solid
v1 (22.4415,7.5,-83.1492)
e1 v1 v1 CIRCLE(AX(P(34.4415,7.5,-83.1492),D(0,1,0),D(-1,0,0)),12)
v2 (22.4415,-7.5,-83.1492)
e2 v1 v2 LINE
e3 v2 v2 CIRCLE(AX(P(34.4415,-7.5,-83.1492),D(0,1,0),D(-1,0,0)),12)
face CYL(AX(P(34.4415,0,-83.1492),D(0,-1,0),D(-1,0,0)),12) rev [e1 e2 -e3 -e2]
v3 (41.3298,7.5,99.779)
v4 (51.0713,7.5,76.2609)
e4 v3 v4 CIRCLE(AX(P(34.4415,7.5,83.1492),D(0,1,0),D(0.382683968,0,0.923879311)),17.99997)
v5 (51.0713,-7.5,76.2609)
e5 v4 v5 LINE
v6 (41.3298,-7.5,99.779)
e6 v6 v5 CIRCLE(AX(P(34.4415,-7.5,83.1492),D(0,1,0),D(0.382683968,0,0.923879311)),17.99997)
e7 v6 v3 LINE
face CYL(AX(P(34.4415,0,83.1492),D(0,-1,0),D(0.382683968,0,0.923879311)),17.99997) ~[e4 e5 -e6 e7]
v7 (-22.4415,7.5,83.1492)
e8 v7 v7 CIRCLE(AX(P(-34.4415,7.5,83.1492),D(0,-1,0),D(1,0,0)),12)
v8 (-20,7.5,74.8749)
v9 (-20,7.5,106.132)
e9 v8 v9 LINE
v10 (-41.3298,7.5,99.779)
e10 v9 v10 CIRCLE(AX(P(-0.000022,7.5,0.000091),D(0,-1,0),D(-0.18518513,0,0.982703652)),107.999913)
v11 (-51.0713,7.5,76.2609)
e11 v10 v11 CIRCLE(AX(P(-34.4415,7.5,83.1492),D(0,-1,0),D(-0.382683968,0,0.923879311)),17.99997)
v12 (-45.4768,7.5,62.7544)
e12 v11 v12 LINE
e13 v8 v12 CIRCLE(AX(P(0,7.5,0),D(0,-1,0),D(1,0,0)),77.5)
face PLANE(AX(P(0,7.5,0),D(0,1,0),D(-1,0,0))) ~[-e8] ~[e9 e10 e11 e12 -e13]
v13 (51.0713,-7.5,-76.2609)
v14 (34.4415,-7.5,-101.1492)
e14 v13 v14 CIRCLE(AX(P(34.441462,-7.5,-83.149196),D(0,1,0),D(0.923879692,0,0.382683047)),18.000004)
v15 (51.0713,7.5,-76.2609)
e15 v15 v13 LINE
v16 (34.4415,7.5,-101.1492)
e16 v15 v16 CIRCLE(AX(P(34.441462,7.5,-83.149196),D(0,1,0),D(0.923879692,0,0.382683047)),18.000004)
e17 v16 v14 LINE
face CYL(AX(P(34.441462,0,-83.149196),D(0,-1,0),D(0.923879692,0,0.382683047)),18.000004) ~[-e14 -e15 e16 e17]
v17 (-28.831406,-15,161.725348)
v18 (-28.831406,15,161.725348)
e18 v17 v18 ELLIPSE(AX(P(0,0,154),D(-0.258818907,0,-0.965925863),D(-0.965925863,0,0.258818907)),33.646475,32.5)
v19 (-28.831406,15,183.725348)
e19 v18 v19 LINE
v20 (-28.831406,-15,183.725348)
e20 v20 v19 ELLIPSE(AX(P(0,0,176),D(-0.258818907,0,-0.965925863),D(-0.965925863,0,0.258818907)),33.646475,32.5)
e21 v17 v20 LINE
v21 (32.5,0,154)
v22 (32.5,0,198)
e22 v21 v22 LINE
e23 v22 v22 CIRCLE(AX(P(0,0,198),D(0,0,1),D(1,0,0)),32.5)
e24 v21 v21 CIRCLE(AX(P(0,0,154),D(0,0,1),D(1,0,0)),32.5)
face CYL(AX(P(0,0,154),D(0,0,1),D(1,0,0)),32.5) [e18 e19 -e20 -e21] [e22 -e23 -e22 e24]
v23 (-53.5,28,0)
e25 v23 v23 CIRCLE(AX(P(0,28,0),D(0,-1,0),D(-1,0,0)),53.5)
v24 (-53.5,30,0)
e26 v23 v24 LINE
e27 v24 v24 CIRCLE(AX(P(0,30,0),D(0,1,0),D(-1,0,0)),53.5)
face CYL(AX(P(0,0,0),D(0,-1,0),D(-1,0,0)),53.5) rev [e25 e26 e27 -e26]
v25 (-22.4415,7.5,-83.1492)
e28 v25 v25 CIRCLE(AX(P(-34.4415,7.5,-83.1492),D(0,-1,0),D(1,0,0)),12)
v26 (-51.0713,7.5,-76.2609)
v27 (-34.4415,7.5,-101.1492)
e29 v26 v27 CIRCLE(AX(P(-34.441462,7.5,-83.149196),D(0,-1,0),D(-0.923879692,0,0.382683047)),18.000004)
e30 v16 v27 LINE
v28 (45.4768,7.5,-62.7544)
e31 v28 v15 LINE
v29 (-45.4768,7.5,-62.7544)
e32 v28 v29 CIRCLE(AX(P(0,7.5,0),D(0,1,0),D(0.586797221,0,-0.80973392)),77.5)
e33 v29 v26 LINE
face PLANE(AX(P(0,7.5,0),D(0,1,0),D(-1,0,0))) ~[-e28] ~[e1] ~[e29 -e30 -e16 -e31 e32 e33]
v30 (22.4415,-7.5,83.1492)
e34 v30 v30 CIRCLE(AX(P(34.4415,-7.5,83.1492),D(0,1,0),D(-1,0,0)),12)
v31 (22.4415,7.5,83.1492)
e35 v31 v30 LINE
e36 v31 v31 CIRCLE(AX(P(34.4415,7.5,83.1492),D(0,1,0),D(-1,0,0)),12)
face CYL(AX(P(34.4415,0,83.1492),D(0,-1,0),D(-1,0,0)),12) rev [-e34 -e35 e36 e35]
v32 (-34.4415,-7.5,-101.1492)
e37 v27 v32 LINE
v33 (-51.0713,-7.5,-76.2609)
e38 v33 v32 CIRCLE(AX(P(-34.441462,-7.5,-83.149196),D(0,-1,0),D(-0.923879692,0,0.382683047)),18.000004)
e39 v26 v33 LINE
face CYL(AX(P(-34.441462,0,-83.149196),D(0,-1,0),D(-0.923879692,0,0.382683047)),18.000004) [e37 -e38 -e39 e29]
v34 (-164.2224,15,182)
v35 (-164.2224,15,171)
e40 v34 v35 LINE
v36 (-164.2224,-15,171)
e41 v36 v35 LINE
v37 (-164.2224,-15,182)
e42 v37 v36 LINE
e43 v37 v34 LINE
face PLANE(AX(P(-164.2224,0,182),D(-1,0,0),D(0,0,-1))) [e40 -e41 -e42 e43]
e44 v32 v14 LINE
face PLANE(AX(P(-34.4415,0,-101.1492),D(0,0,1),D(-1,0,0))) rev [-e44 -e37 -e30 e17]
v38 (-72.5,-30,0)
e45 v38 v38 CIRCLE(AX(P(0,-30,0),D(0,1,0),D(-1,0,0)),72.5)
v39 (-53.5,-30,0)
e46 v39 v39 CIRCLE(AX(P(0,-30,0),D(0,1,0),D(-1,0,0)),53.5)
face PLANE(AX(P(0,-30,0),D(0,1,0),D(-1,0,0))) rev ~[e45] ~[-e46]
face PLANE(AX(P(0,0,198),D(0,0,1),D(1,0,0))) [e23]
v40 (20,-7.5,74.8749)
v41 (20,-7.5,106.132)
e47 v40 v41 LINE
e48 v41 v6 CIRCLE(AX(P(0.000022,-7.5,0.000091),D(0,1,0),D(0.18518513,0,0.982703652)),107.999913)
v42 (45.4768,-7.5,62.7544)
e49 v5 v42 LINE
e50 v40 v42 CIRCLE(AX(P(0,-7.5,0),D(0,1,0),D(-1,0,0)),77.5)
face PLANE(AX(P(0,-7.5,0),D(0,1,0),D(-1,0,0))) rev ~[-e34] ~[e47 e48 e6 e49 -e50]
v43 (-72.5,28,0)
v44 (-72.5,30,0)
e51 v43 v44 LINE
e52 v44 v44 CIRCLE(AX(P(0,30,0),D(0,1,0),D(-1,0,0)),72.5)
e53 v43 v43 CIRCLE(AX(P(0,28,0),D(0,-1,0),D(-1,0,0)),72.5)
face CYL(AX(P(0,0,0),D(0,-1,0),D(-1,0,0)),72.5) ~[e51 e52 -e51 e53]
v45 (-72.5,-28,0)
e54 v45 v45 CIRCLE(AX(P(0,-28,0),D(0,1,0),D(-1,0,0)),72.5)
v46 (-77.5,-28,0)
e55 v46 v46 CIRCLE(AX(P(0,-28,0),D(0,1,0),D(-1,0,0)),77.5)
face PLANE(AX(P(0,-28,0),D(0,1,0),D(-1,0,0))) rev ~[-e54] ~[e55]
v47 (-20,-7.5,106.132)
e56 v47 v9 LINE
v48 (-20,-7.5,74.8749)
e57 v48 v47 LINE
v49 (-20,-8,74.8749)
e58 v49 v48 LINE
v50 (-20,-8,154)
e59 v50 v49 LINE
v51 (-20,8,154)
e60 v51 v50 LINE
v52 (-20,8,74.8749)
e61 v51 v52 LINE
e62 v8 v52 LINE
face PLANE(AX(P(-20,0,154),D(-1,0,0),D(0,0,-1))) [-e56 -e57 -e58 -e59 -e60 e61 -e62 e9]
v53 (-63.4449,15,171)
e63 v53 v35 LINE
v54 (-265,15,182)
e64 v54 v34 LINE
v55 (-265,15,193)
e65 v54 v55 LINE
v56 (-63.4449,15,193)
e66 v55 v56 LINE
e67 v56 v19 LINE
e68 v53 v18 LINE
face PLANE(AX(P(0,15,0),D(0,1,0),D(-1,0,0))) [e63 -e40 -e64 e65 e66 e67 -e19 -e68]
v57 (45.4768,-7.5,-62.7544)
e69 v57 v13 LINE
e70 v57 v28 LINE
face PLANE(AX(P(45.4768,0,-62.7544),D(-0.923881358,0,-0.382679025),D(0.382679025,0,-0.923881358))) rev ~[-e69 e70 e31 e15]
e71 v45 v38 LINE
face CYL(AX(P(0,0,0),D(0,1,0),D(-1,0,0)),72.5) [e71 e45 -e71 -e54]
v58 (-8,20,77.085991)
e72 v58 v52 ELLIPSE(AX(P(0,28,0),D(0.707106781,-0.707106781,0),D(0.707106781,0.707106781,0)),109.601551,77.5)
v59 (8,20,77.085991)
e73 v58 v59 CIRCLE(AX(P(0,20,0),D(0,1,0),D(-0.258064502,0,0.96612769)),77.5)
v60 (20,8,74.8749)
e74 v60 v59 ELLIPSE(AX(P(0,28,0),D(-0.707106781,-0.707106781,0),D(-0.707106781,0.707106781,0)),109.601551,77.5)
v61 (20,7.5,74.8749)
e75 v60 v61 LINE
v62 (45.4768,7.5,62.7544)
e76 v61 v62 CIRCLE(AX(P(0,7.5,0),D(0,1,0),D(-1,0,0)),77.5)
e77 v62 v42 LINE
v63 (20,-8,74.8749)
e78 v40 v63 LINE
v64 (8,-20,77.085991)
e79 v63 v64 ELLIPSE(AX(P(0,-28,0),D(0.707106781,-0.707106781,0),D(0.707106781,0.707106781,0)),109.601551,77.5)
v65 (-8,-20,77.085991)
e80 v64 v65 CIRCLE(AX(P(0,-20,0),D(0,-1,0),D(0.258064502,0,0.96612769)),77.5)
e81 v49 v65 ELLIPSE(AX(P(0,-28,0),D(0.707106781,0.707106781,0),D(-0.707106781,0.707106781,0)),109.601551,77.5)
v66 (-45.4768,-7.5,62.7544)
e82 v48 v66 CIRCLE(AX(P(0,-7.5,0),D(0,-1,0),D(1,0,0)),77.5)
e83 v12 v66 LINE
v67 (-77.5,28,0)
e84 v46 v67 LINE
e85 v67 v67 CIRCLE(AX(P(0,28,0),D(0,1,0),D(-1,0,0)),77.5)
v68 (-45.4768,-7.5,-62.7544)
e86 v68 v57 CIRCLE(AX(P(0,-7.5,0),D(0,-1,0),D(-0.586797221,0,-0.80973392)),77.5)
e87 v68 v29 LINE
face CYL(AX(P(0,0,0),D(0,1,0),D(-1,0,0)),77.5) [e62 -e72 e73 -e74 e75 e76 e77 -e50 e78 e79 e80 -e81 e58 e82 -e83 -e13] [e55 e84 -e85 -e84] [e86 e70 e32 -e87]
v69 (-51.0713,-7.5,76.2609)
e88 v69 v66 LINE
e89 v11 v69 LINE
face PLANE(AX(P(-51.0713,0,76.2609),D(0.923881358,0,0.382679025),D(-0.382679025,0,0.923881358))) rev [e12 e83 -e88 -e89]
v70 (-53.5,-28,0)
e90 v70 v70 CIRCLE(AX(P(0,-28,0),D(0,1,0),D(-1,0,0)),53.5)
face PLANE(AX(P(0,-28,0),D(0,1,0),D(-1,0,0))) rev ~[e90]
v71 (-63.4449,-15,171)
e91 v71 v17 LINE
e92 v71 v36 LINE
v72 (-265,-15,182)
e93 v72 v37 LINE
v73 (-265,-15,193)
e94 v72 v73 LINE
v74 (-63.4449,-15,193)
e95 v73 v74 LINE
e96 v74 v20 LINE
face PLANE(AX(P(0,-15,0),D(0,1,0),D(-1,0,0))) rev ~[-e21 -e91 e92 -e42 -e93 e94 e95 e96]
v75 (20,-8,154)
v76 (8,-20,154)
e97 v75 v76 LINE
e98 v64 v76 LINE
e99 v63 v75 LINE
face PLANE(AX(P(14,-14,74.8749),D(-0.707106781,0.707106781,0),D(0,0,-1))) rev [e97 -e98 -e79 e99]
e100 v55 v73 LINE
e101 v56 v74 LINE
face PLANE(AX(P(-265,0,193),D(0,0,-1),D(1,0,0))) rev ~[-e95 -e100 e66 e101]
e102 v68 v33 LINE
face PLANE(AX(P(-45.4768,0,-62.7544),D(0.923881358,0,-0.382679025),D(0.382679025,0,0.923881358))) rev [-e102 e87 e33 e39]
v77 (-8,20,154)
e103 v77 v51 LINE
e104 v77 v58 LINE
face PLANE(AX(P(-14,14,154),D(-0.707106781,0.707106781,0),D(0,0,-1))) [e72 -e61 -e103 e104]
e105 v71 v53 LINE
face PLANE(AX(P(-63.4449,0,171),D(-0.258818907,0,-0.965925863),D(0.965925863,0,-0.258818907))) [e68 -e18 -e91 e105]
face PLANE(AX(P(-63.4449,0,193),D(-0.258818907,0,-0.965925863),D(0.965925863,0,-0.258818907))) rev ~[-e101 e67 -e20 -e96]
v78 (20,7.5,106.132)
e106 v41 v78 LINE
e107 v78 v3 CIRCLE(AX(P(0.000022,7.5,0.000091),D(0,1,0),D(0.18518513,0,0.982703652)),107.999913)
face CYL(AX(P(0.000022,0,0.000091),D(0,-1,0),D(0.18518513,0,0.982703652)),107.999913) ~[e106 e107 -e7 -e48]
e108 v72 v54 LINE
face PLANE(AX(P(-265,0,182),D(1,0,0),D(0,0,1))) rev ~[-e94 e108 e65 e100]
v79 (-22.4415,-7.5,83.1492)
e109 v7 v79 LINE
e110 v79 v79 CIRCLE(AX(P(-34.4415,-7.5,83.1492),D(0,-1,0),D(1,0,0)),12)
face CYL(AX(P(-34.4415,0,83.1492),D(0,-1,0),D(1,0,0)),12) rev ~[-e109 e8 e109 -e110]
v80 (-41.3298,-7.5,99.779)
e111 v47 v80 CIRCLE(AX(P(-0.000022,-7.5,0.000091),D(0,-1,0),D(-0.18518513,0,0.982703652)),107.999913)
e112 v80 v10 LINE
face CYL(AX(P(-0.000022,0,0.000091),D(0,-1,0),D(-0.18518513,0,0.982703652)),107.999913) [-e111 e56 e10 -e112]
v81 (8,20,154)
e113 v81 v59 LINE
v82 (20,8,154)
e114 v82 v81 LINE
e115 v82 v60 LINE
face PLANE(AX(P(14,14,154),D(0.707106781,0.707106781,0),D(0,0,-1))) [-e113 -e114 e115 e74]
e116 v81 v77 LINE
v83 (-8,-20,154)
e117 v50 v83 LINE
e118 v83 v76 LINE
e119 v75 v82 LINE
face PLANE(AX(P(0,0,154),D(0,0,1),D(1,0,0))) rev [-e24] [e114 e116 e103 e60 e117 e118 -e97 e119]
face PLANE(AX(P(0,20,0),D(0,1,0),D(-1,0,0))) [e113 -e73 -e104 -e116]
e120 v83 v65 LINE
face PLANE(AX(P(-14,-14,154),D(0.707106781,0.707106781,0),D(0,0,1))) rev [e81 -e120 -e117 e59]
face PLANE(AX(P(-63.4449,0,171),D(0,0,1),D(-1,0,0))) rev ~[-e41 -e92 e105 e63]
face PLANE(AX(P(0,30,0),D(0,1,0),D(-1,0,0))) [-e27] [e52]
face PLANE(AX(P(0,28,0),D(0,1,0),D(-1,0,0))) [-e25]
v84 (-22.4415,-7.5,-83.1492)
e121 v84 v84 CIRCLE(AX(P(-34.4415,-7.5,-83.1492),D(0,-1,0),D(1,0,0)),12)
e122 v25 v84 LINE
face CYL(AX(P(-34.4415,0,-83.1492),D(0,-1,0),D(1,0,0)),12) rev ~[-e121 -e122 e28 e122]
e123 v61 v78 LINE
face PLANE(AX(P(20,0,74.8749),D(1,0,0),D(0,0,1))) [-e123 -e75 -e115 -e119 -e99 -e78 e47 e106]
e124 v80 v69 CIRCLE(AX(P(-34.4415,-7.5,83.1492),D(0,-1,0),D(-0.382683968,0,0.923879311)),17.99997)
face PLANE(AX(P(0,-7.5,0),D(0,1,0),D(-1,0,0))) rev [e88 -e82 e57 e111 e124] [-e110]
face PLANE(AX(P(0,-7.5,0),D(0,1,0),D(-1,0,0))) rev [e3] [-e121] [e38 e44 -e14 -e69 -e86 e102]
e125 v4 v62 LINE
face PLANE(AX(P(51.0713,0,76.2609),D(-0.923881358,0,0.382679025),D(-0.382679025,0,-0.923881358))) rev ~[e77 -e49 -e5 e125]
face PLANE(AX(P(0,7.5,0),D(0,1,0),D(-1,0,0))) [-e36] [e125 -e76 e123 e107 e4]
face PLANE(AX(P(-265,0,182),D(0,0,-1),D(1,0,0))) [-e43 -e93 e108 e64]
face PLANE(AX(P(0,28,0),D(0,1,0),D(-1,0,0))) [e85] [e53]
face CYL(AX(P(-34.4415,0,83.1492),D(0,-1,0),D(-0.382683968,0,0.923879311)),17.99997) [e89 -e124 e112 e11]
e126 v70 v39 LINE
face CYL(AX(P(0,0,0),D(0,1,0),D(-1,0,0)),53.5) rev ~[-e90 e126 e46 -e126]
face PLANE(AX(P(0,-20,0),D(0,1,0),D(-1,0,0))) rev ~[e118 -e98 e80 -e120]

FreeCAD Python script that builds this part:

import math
import FreeCAD as App
import Part
import Sketcher

V = App.Vector
Q = App.Units.Quantity


def edges_at(feature, points):
    """Names of the edges that pass closest to the given points."""
    edges = feature.Shape.Edges
    near = lambda p: min(range(len(edges)), key=lambda i: edges[i].distToShape(Part.Vertex(*p))[0])
    return sorted({f"Edge{near(p) + 1}" for p in points})


def add_polygon(sketch, points):
    """Adds a closed chain of lines whose ends are joined by coincident constraints."""
    first, n = sketch.GeometryCount, len(points)
    for a, b in zip(points, points[1:] + points[:1]):
        sketch.addGeometry(Part.LineSegment(App.Vector(*a, 0), App.Vector(*b, 0)), False)
    for i in range(n):
        sketch.addConstraint(Sketcher.Constraint("Coincident", first + i, 2, first + (i + 1) % n, 1))

doc = App.newDocument("Part")
body = doc.addObject("PartDesign::Body", "Body")

sketch1 = doc.addObject("Sketcher::SketchObject", "Sketch")
body.addObject(sketch1)
sketch1.AttachmentSupport = (doc.XZ_Plane, [""])
sketch1.MapMode = "FlatFace"
sketch1.addGeometry(Part.Circle(V(0, 0, 0), V(0, 0, 1), 77.5), False)
sketch1.addConstraint([
    Sketcher.Constraint("Coincident", 0, 3, -1, 1),
    Sketcher.Constraint("Diameter", 0, Q("155 mm")),
])
pad1 = doc.addObject("PartDesign::Pad", "Pad")
body.addObject(pad1)
pad1.Profile = sketch1
pad1.Length = 56
pad1.Midplane = True

sketch2 = doc.addObject("Sketcher::SketchObject", "Sketch001")
body.addObject(sketch2)
sketch2.AttachmentSupport = (doc.XZ_Plane, [""])
sketch2.MapMode = "FlatFace"
sketch2.addGeometry([
    Part.Circle(V(0, 0, 0), V(0, 0, 1), 72.5),
    Part.Circle(V(0, 0, 0), V(0, 0, 1), 53.5),
], False)
sketch2.addConstraint([
    Sketcher.Constraint("Coincident", 0, 3, -1, 1),
    Sketcher.Constraint("Coincident", 1, 3, -1, 1),
    Sketcher.Constraint("Diameter", 0, Q("145 mm")),
    Sketcher.Constraint("Diameter", 1, Q("107 mm")),
])
pad2 = doc.addObject("PartDesign::Pad", "Pad001")
body.addObject(pad2)
pad2.Profile = sketch2
pad2.Length = 60
pad2.Midplane = True

sketch3 = doc.addObject("Sketcher::SketchObject", "Sketch002")
body.addObject(sketch3)
sketch3.AttachmentSupport = (doc.XZ_Plane, [""])
sketch3.MapMode = "FlatFace"
sketch3.addGeometry([
    Part.LineSegment(V(-20, 74.8749, 0), V(-20, 154, 0)),
    Part.LineSegment(V(-20, 154, 0), V(20, 154, 0)),
    Part.LineSegment(V(20, 154, 0), V(20, 74.8749, 0)),
    Part.ArcOfCircle(Part.Circle(V(0, 0, 0), V(0, 0, 1), 77.5), math.radians(75.044753), math.radians(104.955247)),
], False)
sketch3.addConstraint([
    Sketcher.Constraint("Coincident", 0, 2, 1, 1),
    Sketcher.Constraint("Coincident", 1, 2, 2, 1),
    Sketcher.Constraint("Coincident", 2, 2, 3, 1),
    Sketcher.Constraint("Coincident", 3, 2, 0, 1),
    Sketcher.Constraint("Vertical", 0),
    Sketcher.Constraint("Horizontal", 1),
    Sketcher.Constraint("Vertical", 2),
    Sketcher.Constraint("Coincident", 3, 3, -1, 1),
    Sketcher.Constraint("Horizontal", 2, 2, 3, 2),
    Sketcher.Constraint("Radius", 3, Q("77.5 mm")),
    Sketcher.Constraint("DistanceX", 1, 1, 1, 2, Q("40 mm")),
    Sketcher.Constraint("DistanceY", -1, 1, 0, 2, Q("154 mm")),
])
pad3 = doc.addObject("PartDesign::Pad", "Pad002")
body.addObject(pad3)
pad3.Profile = sketch3
pad3.Length = 40
pad3.Midplane = True

sketch4 = doc.addObject("Sketcher::SketchObject", "Sketch003")
body.addObject(sketch4)
sketch4.AttachmentSupport = (doc.XZ_Plane, [""])
sketch4.MapMode = "FlatFace"
add_polygon(sketch4, [(32.5, 154), (0, 154), (0, 198), (32.5, 198)])
sketch4.addConstraint([
    Sketcher.Constraint("Horizontal", 0),
    Sketcher.Constraint("Vertical", 1),
    Sketcher.Constraint("Horizontal", 2),
    Sketcher.Constraint("Vertical", 3),
    Sketcher.Constraint("PointOnObject", 0, 2, -2),
    Sketcher.Constraint("DistanceY", 1, 1, 1, 2, Q("44 mm")),
    Sketcher.Constraint("DistanceY", -1, 1, 1, 2, Q("198 mm")),
    Sketcher.Constraint("DistanceX", 0, 2, 0, 1, Q("32.5 mm")),
])
revolution = doc.addObject("PartDesign::Revolution", "Revolution")
body.addObject(revolution)
revolution.Profile = sketch4
revolution.ReferenceAxis = (sketch4, ["V_Axis"])
revolution.Angle = 360

sketch5 = doc.addObject("Sketcher::SketchObject", "Sketch004")
body.addObject(sketch5)
sketch5.AttachmentSupport = (doc.XZ_Plane, [""])
sketch5.MapMode = "FlatFace"
sketch5.addGeometry([
    Part.Circle(V(0, 0, 0), V(0, 0, 1), 53.5),
    Part.ArcOfCircle(Part.Circle(V(0, 0, 0), V(0, 0, 1), 77.5), math.radians(54.069943), math.radians(75.044753)),
    Part.LineSegment(V(20, 74.8749, 0), V(20, 106.132, 0)),
    Part.ArcOfCircle(Part.Circle(V(0, 0, 0), V(0, 0, 1), 108.000007), math.radians(67.500007), math.radians(79.328071)),
    Part.ArcOfCircle(Part.Circle(V(34.4415, 83.1492, 0), V(0, 0, 1), 17.99997), math.radians(-22.500033), math.radians(67.499967)),
    Part.LineSegment(V(51.0713, 76.2609, 0), V(45.4768, 62.7544, 0)),
    Part.Circle(V(34.4415, 83.1492, 0), V(0, 0, 1), 12),
    Part.LineSegment(V(0, -101.1492, 0), V(0, -77.5, 0)),
    Part.ArcOfCircle(Part.Circle(V(0, 0, 0), V(0, 0, 1), 77.5), math.radians(-90), math.radians(-54.069943)),
    Part.LineSegment(V(45.4768, -62.7544, 0), V(51.0713, -76.2609, 0)),
    Part.ArcOfCircle(Part.Circle(V(34.4415, -83.1492, 0), V(0, 0, 1), 17.99997), math.radians(-90), math.radians(22.500033)),
    Part.LineSegment(V(34.4415, -101.1492, 0), V(0, -101.1492, 0)),
    Part.Circle(V(34.4415, -83.1492, 0), V(0, 0, 1), 12),
], False)
sketch5.addConstraint([
    Sketcher.Constraint("Coincident", 1, 2, 2, 1),
    Sketcher.Constraint("Coincident", 2, 2, 3, 2),
    Sketcher.Constraint("Tangent", 3, 1, 4, 2),
    Sketcher.Constraint("Tangent", 4, 1, 5, 1),
    Sketcher.Constraint("Coincident", 5, 2, 1, 1),
    Sketcher.Constraint("Coincident", 7, 2, 8, 1),
    Sketcher.Constraint("Coincident", 8, 2, 9, 1),
    Sketcher.Constraint("Tangent", 9, 2, 10, 2),
    Sketcher.Constraint("Tangent", 10, 1, 11, 1),
    Sketcher.Constraint("Coincident", 11, 2, 7, 1),
    Sketcher.Constraint("Vertical", 2),
    Sketcher.Constraint("Vertical", 7),
    Sketcher.Constraint("Horizontal", 11),
    Sketcher.Constraint("Coincident", 0, 3, -1, 1),
    Sketcher.Constraint("Coincident", 1, 3, -1, 1),
    Sketcher.Constraint("Coincident", 3, 3, -1, 1),
    Sketcher.Constraint("Coincident", 8, 3, -1, 1),
    Sketcher.Constraint("Coincident", 6, 3, 4, 3),
    Sketcher.Constraint("Coincident", 12, 3, 10, 3),
    Sketcher.Constraint("Equal", 1, 8),
    Sketcher.Constraint("Equal", 4, 10),
    Sketcher.Constraint("Equal", 6, 12),
    Sketcher.Constraint("Symmetric", 4, 3, 10, 3, -1),
    Sketcher.Constraint("PointOnObject", 7, 2, -2),
    Sketcher.Constraint("Vertical", 5, 2, 8, 2),
    Sketcher.Constraint("Diameter", 0, Q("107 mm")),
    Sketcher.Constraint("Diameter", 6, Q("24 mm")),
    Sketcher.Constraint("Radius", 1, Q("77.5 mm")),
    Sketcher.Constraint("Radius", 3, Q("108 mm")),
    Sketcher.Constraint("Radius", 4, Q("18 mm")),
    Sketcher.Constraint("DistanceX", -1, 1, 1, 2, Q("20 mm")),
    Sketcher.Constraint("Angle", 5, Q("-112.4997 deg")),
    Sketcher.Constraint("DistanceX", 11, 2, 11, 1, Q("34.4415 mm")),
])
pad4 = doc.addObject("PartDesign::Pad", "Pad003")
body.addObject(pad4)
pad4.Profile = sketch5
pad4.Length = 15
pad4.Midplane = True
doc.recompute()

mirrored = doc.addObject("PartDesign::Mirrored", "Mirrored")
body.addObject(mirrored)
mirrored.Originals = [pad4]
mirrored.MirrorPlane = (doc.YZ_Plane, [""])
body.Tip = mirrored

sketch6 = doc.addObject("Sketcher::SketchObject", "Sketch005")
body.addObject(sketch6)
sketch6.AttachmentSupport = (doc.XZ_Plane, [""])
sketch6.MapMode = "FlatFace"
add_polygon(sketch6, [(0, 176), (0, 154), (-63.4449, 171), (-164.2224, 171), (-164.2224, 182), (-265, 182), (-265, 193), (-63.4449, 193)])
sketch6.addConstraint([
    Sketcher.Constraint("Vertical", 0),
    Sketcher.Constraint("Horizontal", 2),
    Sketcher.Constraint("Vertical", 3),
    Sketcher.Constraint("Horizontal", 4),
    Sketcher.Constraint("Vertical", 5),
    Sketcher.Constraint("Horizontal", 6),
    Sketcher.Constraint("PointOnObject", 0, 2, -2),
    Sketcher.Constraint("Parallel", 1, 7),
    Sketcher.Constraint("Vertical", 1, 2, 6, 2),
    Sketcher.Constraint("Equal", 2, 4),
    Sketcher.Constraint("Equal", 3, 5),
    Sketcher.Constraint("Angle", 7, Q("-15 deg")),
    Sketcher.Constraint("DistanceX", 4, 2, -1, 1, Q("265 mm")),
    Sketcher.Constraint("DistanceY", 1, 2, 7, 2, Q("5 mm")),
    Sketcher.Constraint("DistanceY", 7, 2, 3, 2, Q("6 mm")),
    Sketcher.Constraint("DistanceY", -1, 1, 0, 2, Q("154 mm")),
])
pad5 = doc.addObject("PartDesign::Pad", "Pad004")
body.addObject(pad5)
pad5.Profile = sketch6
pad5.Length = 30
pad5.Midplane = True
doc.recompute()

chamfer = doc.addObject("PartDesign::Chamfer", "Chamfer")
body.addObject(chamfer)
chamfer.Base = (pad5, edges_at(pad5, [
    (-20, 20, 114.437),
    (20, 20, 114.437),
    (-20, -20, 114.437),
    (20, -20, 114.437),
]))
chamfer.Size = 12

doc.recompute()
